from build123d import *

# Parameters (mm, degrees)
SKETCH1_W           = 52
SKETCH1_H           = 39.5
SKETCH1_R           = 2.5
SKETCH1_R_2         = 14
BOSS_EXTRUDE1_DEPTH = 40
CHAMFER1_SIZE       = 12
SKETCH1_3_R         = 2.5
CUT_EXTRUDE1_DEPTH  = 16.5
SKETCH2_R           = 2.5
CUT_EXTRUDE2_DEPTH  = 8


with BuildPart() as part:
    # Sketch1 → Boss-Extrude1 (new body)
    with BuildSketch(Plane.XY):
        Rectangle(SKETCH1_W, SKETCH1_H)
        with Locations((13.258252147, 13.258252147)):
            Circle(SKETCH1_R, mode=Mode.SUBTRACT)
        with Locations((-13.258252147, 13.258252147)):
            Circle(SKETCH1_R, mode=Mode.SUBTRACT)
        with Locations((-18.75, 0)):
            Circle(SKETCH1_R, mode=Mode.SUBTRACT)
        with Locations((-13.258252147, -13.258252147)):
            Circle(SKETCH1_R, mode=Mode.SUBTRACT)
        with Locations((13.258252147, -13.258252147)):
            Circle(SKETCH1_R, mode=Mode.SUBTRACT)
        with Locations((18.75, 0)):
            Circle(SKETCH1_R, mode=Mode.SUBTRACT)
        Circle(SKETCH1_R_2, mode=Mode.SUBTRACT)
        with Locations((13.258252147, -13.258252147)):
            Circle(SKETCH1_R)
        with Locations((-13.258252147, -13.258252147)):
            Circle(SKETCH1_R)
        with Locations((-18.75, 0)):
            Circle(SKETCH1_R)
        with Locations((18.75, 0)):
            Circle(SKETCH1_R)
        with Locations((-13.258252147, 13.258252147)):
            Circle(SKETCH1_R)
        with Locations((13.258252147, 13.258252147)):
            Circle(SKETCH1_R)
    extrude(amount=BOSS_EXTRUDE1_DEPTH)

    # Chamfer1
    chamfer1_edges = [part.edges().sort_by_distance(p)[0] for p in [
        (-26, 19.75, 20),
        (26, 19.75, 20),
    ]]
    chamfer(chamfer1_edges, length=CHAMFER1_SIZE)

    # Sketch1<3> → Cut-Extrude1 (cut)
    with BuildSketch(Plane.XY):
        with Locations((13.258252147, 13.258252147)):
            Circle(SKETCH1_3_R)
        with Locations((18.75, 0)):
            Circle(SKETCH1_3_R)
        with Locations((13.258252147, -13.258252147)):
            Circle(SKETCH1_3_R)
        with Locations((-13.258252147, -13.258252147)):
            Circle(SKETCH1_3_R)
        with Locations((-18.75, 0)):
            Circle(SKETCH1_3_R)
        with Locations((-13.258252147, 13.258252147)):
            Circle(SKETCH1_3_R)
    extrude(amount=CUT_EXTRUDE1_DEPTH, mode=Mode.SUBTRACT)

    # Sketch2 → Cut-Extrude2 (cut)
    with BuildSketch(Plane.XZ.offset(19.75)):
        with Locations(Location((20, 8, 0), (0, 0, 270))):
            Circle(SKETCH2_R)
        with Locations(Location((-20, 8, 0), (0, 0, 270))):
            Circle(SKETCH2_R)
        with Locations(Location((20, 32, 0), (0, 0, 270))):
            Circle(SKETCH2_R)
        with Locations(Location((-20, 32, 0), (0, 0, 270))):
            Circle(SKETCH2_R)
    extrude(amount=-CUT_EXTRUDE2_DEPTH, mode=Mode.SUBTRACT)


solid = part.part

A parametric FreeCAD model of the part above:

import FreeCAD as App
import Part
import Sketcher
from FreeCAD import Vector
Q = App.Units.Quantity


def edges_at(feature, points):
    """Names of the edges that pass closest to the given points."""
    edges = feature.Shape.Edges
    near = lambda p: min(range(len(edges)), key=lambda i: edges[i].distToShape(Part.Vertex(*p))[0])
    return sorted({f"Edge{near(p) + 1}" for p in points})


def add_polygon(sketch, points):
    """Adds a closed chain of lines whose ends are joined by coincident constraints."""
    first, n = sketch.GeometryCount, len(points)
    for a, b in zip(points, points[1:] + points[:1]):
        sketch.addGeometry(Part.LineSegment(App.Vector(*a, 0), App.Vector(*b, 0)), False)
    for i in range(n):
        sketch.addConstraint(Sketcher.Constraint("Coincident", first + i, 2, first + (i + 1) % n, 1))

doc = App.newDocument("Part")
body = doc.addObject("PartDesign::Body", "Body")

sketch1 = doc.addObject("Sketcher::SketchObject", "Sketch")
body.addObject(sketch1)
sketch1.AttachmentSupport = (doc.XY_Plane, [""])
sketch1.MapMode = "FlatFace"
add_polygon(sketch1, [(-26, 20), (-26, -20), (26, -20), (26, 20)])
sketch1.addGeometry(Part.Circle(Vector(0, 0, 0), Vector(0, 0, 1), 14), False)
sketch1.addConstraint([
    Sketcher.Constraint("Vertical", 0),
    Sketcher.Constraint("Horizontal", 1),
    Sketcher.Constraint("Vertical", 2),
    Sketcher.Constraint("Horizontal", 3),
    Sketcher.Constraint("Coincident", 4, 3, -1, 1),
    Sketcher.Constraint("Symmetric", 0, 2, 2, 2, -1, 1),
    Sketcher.Constraint("Diameter", 4, Q("28 mm")),
    Sketcher.Constraint("DistanceX", 1, 1, 1, 2, Q("52 mm")),
    Sketcher.Constraint("DistanceY", 0, 2, 0, 1, Q("39.5 mm")),
])
pad1 = doc.addObject("PartDesign::Pad", "Pad")
body.addObject(pad1)
pad1.Profile = sketch1
pad1.Length = 40
doc.recompute()

chamfer = doc.addObject("PartDesign::Chamfer", "Chamfer")
body.addObject(chamfer)
chamfer.Base = (pad1, edges_at(pad1, [(-26, 19.75, 20), (26, 19.75, 20)]))
chamfer.Size = 12

sketch2 = doc.addObject("Sketcher::SketchObject", "Sketch001")
body.addObject(sketch2)
sketch2.AttachmentSupport = (doc.XY_Plane, [""])
sketch2.MapMode = "FlatFace"
sketch2.addGeometry([
    Part.Circle(Vector(13.3, 13.3, 0), Vector(0, 0, 1), 2.5),
    Part.Circle(Vector(18.8, 0, 0), Vector(0, 0, 1), 2.5),
    Part.Circle(Vector(13.3, -13.3, 0), Vector(0, 0, 1), 2.5),
    Part.Circle(Vector(-13.3, -13.3, 0), Vector(0, 0, 1), 2.5),
    Part.Circle(Vector(-18.8, 0, 0), Vector(0, 0, 1), 2.5),
    Part.Circle(Vector(-13.3, 13.3, 0), Vector(0, 0, 1), 2.5),
], False)
sketch2.addConstraint([
    Sketcher.Constraint("Equal", 0, 1),
    Sketcher.Constraint("Equal", 1, 2),
    Sketcher.Constraint("Equal", 2, 3),
    Sketcher.Constraint("Equal", 3, 4),
    Sketcher.Constraint("Equal", 4, 5),
    Sketcher.Constraint("Symmetric", 0, 3, 3, 3, -1, 1),
    Sketcher.Constraint("Symmetric", 1, 3, 4, 3, -1, 1),
    Sketcher.Constraint("Symmetric", 2, 3, 5, 3, -1, 1),
    Sketcher.Constraint("Symmetric", 2, 3, 3, 3, -2),
    Sketcher.Constraint("PointOnObject", 1, 3, -1),
    Sketcher.Constraint("Diameter", 0, Q("5 mm")),
    Sketcher.Constraint("DistanceX", 4, 3, 1, 3, Q("37.5 mm")),
    Sketcher.Constraint("DistanceX", -1, 1, 0, 3, Q("13.258252 mm")),
    Sketcher.Constraint("DistanceY", -1, 1, 0, 3, Q("13.258252 mm")),
])
pocket1 = doc.addObject("PartDesign::Pocket", "Pocket")
body.addObject(pocket1)
pocket1.Profile = sketch2
pocket1.Length = 16.5
pocket1.Reversed = True

sketch3 = doc.addObject("Sketcher::SketchObject", "Sketch002")
body.addObject(sketch3)
sketch3.AttachmentSupport = (doc.XZ_Plane, [""])
sketch3.MapMode = "FlatFace"
sketch3.AttachmentOffset = App.Placement(Vector(0, 0, 19.75), App.Rotation())
sketch3.addGeometry([
    Part.Circle(Vector(20, 8, 0), Vector(0, 0, 1), 2.5),
    Part.Circle(Vector(-20, 8, 0), Vector(0, 0, 1), 2.5),
    Part.Circle(Vector(20, 32, 0), Vector(0, 0, 1), 2.5),
    Part.Circle(Vector(-20, 32, 0), Vector(0, 0, 1), 2.5),
], False)
sketch3.addConstraint([
    Sketcher.Constraint("Equal", 0, 1),
    Sketcher.Constraint("Equal", 1, 2),
    Sketcher.Constraint("Equal", 2, 3),
    Sketcher.Constraint("Symmetric", 0, 3, 1, 3, -2),
    Sketcher.Constraint("Symmetric", 2, 3, 3, 3, -2),
    Sketcher.Constraint("Vertical", 0, 3, 2, 3),
    Sketcher.Constraint("Diameter", 0, Q("5 mm")),
    Sketcher.Constraint("DistanceX", -1, 1, 0, 3, Q("20 mm")),
    Sketcher.Constraint("DistanceY", -1, 1, 0, 3, Q("8 mm")),
    Sketcher.Constraint("DistanceY", -1, 1, 2, 3, Q("32 mm")),
])
pocket2 = doc.addObject("PartDesign::Pocket", "Pocket001")
body.addObject(pocket2)
pocket2.Profile = sketch3
pocket2.Length = 8

doc.recompute()
